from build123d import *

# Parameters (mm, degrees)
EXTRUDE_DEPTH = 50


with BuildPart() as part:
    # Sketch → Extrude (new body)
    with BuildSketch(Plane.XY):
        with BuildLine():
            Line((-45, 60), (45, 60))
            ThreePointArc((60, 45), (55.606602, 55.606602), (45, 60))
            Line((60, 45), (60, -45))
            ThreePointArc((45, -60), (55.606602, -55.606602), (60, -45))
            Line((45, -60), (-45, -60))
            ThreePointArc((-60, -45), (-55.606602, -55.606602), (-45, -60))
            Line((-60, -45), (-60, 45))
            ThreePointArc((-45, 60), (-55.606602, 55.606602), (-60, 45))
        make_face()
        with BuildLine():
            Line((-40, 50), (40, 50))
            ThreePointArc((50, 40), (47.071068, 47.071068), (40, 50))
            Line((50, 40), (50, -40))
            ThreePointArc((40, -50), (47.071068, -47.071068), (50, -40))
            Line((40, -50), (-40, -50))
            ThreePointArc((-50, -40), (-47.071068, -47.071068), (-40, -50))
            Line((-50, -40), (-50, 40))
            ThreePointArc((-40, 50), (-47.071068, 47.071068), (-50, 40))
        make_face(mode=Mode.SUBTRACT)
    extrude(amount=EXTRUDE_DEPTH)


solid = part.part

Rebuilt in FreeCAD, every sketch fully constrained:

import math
import FreeCAD as App
import Part
import Sketcher
from FreeCAD import Vector
Q = App.Units.Quantity

doc = App.newDocument("Part")
body = doc.addObject("PartDesign::Body", "Body")

# Sketch on XY plane
sketch1 = body.newObject("Sketcher::SketchObject", "Sketch")
sketch1.AttachmentSupport = (doc.getObject("XY_Plane"), [""])
sketch1.MapMode = "FlatFace"
sketch1.addGeometry([
    Part.LineSegment(Vector(45, 60, 0), Vector(-45, 60, 0)),  # 0
    Part.ArcOfCircle(Part.Circle(Vector(-45.000001, 45.000001, 0), Vector(0, 0, 1), 14.999999), math.radians(89.999996), math.radians(180.000004)),  # 1
    Part.LineSegment(Vector(-60, 45, 0), Vector(-60, -45, 0)),  # 2
    Part.ArcOfCircle(Part.Circle(Vector(-45.000001, -45.000001, 0), Vector(0, 0, 1), 14.999999), math.radians(179.999996), math.radians(270.000004)),  # 3
    Part.LineSegment(Vector(-45, -60, 0), Vector(45, -60, 0)),  # 4
    Part.ArcOfCircle(Part.Circle(Vector(45.000001, -45.000001, 0), Vector(0, 0, 1), 14.999999), math.radians(-90.000004), math.radians(0.000004)),  # 5
    Part.LineSegment(Vector(60, -45, 0), Vector(60, 45, 0)),  # 6
    Part.ArcOfCircle(Part.Circle(Vector(45.000001, 45.000001, 0), Vector(0, 0, 1), 14.999999), math.radians(-0.000004), math.radians(90.000004)),  # 7
    Part.LineSegment(Vector(-40, 50, 0), Vector(40, 50, 0)),  # 8
    Part.ArcOfCircle(Part.Circle(Vector(40.000001, 40.000001, 0), Vector(0, 0, 1), 9.999999), math.radians(-0.000004), math.radians(90.000004)),  # 9
    Part.LineSegment(Vector(50, 40, 0), Vector(50, -40, 0)),  # 10
    Part.ArcOfCircle(Part.Circle(Vector(40.000001, -40.000001, 0), Vector(0, 0, 1), 9.999999), math.radians(-90.000004), math.radians(0.000004)),  # 11
    Part.LineSegment(Vector(40, -50, 0), Vector(-40, -50, 0)),  # 12
    Part.ArcOfCircle(Part.Circle(Vector(-40.000001, -40.000001, 0), Vector(0, 0, 1), 9.999999), math.radians(179.999996), math.radians(270.000004)),  # 13
    Part.LineSegment(Vector(-50, -40, 0), Vector(-50, 40, 0)),  # 14
    Part.ArcOfCircle(Part.Circle(Vector(-40.000001, 40.000001, 0), Vector(0, 0, 1), 9.999999), math.radians(89.999996), math.radians(180.000004)),  # 15
], False)
sketch1.addConstraint([
    Sketcher.Constraint("Tangent", 0, 2, 1, 1),
    Sketcher.Constraint("Tangent", 1, 2, 2, 1),
    Sketcher.Constraint("Tangent", 2, 2, 3, 1),
    Sketcher.Constraint("Tangent", 3, 2, 4, 1),
    Sketcher.Constraint("Tangent", 4, 2, 5, 1),
    Sketcher.Constraint("Tangent", 5, 2, 6, 1),
    Sketcher.Constraint("Tangent", 6, 2, 7, 1),
    Sketcher.Constraint("Tangent", 7, 2, 0, 1),
    Sketcher.Constraint("Tangent", 8, 2, 9, 2),
    Sketcher.Constraint("Tangent", 9, 1, 10, 1),
    Sketcher.Constraint("Tangent", 10, 2, 11, 2),
    Sketcher.Constraint("Tangent", 11, 1, 12, 1),
    Sketcher.Constraint("Tangent", 12, 2, 13, 2),
    Sketcher.Constraint("Tangent", 13, 1, 14, 1),
    Sketcher.Constraint("Tangent", 14, 2, 15, 2),
    Sketcher.Constraint("Tangent", 15, 1, 8, 1),
    Sketcher.Constraint("Horizontal", 0),
    Sketcher.Constraint("Vertical", 2),
    Sketcher.Constraint("Horizontal", 4),
    Sketcher.Constraint("Vertical", 6),
    Sketcher.Constraint("Horizontal", 8),
    Sketcher.Constraint("Vertical", 10),
    Sketcher.Constraint("Horizontal", 12),
    Sketcher.Constraint("Vertical", 14),
    Sketcher.Constraint("Equal", 1, 3),
    Sketcher.Constraint("Equal", 3, 5),
    Sketcher.Constraint("Equal", 5, 7),
    Sketcher.Constraint("Equal", 9, 11),
    Sketcher.Constraint("Equal", 11, 13),
    Sketcher.Constraint("Equal", 13, 15),
    Sketcher.Constraint("Symmetric", 1, 3, 5, 3, -1, 1),
    Sketcher.Constraint("Symmetric", 9, 3, 13, 3, -1, 1),
    Sketcher.Constraint("Equal", 4, 2),
    Sketcher.Constraint("Equal", 12, 10),
    Sketcher.Constraint("Radius", 1, Q("14.999999 mm")),
    Sketcher.Constraint("Radius", 9, Q("9.999999 mm")),
    Sketcher.Constraint("DistanceX", 0, 2, 0, 1, Q("90 mm")),
    Sketcher.Constraint("DistanceX", 8, 1, 8, 2, Q("80 mm")),
])
pad1 = body.newObject("PartDesign::Pad", "Pad")
pad1.Profile = sketch1
pad1.Length = 50

doc.recompute()
